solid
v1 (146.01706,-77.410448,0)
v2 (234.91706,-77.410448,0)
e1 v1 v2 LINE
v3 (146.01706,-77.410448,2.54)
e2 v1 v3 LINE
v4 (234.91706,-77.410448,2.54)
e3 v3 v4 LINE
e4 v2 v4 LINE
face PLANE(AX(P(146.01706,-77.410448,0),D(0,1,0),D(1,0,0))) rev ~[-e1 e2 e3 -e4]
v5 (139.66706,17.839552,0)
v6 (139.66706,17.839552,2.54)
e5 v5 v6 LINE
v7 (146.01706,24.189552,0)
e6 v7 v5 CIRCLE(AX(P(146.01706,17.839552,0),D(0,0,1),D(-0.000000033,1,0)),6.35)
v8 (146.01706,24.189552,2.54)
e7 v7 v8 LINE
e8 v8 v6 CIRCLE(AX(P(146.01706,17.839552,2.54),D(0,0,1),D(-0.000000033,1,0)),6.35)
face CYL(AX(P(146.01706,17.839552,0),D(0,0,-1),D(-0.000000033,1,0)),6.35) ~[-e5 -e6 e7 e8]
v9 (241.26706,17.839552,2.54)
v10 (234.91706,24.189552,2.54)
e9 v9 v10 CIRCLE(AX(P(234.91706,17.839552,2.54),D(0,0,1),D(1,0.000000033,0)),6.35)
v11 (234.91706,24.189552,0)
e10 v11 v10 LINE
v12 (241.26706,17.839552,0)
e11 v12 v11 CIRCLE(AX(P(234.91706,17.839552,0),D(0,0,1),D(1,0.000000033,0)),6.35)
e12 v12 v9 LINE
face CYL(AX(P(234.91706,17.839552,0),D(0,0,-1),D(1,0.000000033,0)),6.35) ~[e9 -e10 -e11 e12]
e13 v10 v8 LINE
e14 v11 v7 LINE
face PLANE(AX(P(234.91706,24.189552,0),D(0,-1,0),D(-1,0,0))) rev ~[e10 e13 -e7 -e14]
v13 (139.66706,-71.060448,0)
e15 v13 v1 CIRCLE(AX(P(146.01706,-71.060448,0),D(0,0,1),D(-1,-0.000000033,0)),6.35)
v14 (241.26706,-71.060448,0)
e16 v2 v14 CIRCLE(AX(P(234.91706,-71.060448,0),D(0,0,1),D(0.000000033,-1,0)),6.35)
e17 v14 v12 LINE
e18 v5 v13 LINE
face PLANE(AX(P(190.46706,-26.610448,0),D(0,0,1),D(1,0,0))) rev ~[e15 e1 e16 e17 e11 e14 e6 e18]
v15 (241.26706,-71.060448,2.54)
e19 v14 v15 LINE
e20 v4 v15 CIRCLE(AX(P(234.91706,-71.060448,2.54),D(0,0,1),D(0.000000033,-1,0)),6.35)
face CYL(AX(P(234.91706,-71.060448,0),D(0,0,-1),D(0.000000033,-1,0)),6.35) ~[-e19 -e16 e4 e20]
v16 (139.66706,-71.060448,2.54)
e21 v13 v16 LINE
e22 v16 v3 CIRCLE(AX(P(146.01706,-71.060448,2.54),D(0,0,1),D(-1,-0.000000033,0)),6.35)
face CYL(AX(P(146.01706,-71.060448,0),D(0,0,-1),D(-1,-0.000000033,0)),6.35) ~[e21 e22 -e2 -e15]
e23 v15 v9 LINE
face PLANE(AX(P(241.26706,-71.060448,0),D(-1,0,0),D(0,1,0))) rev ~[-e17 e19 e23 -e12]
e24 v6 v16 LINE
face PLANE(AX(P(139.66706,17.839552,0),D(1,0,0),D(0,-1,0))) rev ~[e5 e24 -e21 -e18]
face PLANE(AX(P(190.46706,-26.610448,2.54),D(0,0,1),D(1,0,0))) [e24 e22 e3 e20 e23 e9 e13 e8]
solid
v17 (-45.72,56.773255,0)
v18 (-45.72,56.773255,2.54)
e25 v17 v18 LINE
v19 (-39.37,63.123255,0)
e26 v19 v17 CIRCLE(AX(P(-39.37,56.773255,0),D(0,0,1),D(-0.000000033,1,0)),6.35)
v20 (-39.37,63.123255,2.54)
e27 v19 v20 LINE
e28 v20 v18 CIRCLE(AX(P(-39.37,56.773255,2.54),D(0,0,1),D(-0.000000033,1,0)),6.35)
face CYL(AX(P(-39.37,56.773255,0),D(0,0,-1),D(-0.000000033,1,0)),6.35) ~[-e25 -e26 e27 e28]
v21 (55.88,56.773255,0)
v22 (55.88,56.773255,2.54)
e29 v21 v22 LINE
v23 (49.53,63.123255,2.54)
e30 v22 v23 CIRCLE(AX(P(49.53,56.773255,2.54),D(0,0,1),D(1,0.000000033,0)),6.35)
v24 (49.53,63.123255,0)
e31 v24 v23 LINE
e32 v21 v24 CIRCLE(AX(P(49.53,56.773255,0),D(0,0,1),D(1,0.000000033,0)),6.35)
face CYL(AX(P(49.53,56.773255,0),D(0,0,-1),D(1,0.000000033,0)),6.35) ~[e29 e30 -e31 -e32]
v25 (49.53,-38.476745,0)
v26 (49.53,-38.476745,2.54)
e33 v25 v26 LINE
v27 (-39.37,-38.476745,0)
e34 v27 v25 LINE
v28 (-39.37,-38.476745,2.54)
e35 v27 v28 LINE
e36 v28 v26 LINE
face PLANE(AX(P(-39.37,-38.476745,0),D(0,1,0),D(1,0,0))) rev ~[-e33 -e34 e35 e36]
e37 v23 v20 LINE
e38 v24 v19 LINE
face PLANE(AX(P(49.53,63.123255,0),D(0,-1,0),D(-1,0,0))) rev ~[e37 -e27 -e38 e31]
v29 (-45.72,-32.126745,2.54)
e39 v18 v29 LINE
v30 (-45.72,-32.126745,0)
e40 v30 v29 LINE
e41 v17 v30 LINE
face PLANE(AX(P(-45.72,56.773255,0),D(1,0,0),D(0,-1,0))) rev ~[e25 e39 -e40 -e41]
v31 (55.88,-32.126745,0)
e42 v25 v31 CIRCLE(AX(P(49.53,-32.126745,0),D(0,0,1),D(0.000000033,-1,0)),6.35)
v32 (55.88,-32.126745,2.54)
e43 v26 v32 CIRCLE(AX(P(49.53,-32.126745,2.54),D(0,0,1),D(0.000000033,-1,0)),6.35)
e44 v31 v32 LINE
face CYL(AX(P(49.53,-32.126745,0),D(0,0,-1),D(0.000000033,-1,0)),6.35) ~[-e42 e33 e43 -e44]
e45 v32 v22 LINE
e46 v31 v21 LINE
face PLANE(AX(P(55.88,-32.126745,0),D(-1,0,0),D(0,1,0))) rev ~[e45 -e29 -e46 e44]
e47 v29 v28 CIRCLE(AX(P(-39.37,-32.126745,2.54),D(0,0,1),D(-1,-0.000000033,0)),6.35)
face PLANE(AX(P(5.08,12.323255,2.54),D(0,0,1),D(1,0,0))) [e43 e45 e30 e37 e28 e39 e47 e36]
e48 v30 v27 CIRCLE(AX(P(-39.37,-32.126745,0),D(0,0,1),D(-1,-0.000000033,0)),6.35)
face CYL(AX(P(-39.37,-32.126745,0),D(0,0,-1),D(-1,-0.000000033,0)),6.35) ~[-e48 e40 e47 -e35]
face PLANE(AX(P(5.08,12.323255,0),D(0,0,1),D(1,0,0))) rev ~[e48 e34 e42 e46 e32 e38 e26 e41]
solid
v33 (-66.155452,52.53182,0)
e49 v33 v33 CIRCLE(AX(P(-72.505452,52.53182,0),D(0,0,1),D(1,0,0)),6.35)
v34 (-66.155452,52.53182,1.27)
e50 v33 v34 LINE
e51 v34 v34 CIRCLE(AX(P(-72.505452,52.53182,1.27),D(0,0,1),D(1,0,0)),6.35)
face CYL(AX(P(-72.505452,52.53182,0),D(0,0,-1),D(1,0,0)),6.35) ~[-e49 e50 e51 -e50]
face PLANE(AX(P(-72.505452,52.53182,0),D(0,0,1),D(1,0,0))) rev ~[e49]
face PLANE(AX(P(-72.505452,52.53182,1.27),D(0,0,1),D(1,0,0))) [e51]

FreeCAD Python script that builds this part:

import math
import FreeCAD as App
import Part
import Sketcher

V = App.Vector
Q = App.Units.Quantity

doc = App.newDocument("Part")
body = doc.addObject("PartDesign::Body", "Body")

# Sketch on XY plane
sketch1 = body.newObject("Sketcher::SketchObject", "Sketch")
sketch1.AttachmentSupport = (doc.getObject("XY_Plane"), [""])
sketch1.MapMode = "FlatFace"
sketch1.addGeometry(Part.ArcOfCircle(Part.Circle(V(-39.37, -32.126745, 0), V(0, 0, 1), 6.35), math.radians(-179.999998), math.radians(-90.000002)), False)
sketch1.addGeometry(Part.LineSegment(V(-39.37, -38.476745, 0), V(49.53, -38.476745, 0)), False)
sketch1.addGeometry(Part.ArcOfCircle(Part.Circle(V(49.53, -32.126745, 0), V(0, 0, 1), 6.35), math.radians(-89.999998), math.radians(-0.000002)), False)
sketch1.addGeometry(Part.LineSegment(V(55.88, -32.126745, 0), V(55.88, 56.773255, 0)), False)
sketch1.addGeometry(Part.ArcOfCircle(Part.Circle(V(49.53, 56.773255, 0), V(0, 0, 1), 6.35), math.radians(0.000002), math.radians(89.999998)), False)
sketch1.addGeometry(Part.LineSegment(V(49.53, 63.123255, 0), V(-39.37, 63.123255, 0)), False)
sketch1.addGeometry(Part.ArcOfCircle(Part.Circle(V(-39.37, 56.773255, 0), V(0, 0, 1), 6.35), math.radians(90.000002), math.radians(179.999998)), False)
sketch1.addGeometry(Part.LineSegment(V(-45.72, 56.773255, 0), V(-45.72, -32.126745, 0)), False)
sketch1.addConstraint(Sketcher.Constraint("Tangent", 0, 2, 1, 1))
sketch1.addConstraint(Sketcher.Constraint("Tangent", 1, 2, 2, 1))
sketch1.addConstraint(Sketcher.Constraint("Tangent", 2, 2, 3, 1))
sketch1.addConstraint(Sketcher.Constraint("Tangent", 3, 2, 4, 1))
sketch1.addConstraint(Sketcher.Constraint("Tangent", 4, 2, 5, 1))
sketch1.addConstraint(Sketcher.Constraint("Tangent", 5, 2, 6, 1))
sketch1.addConstraint(Sketcher.Constraint("Tangent", 6, 2, 7, 1))
sketch1.addConstraint(Sketcher.Constraint("Tangent", 7, 2, 0, 1))
sketch1.addConstraint(Sketcher.Constraint("Horizontal", 1))
sketch1.addConstraint(Sketcher.Constraint("Vertical", 3))
sketch1.addConstraint(Sketcher.Constraint("Horizontal", 5))
sketch1.addConstraint(Sketcher.Constraint("Vertical", 7))
sketch1.addConstraint(Sketcher.Constraint("Equal", 0, 2))
sketch1.addConstraint(Sketcher.Constraint("Equal", 2, 4))
sketch1.addConstraint(Sketcher.Constraint("Equal", 4, 6))
sketch1.addConstraint(Sketcher.Constraint("Equal", 5, 3))
sketch1.addConstraint(Sketcher.Constraint("Radius", 0, Q("0.25 in")))
sketch1.addConstraint(Sketcher.Constraint("DistanceX", 1, 1, 1, 2, Q("3.5 in")))
sketch1.addConstraint(Sketcher.Constraint("DistanceX", -1, 1, 2, 2, Q("2.2 in")))
sketch1.addConstraint(Sketcher.Constraint("DistanceY", 0, 3, -1, 1, 32.126745))
pad1 = body.newObject("PartDesign::Pad", "Pad")
pad1.Profile = sketch1
pad1.Length = Q("0.1 in")
body2 = doc.addObject("PartDesign::Body", "Body001")

# Sketch on XY plane
sketch2 = body2.newObject("Sketcher::SketchObject", "Sketch001")
sketch2.AttachmentSupport = (doc.getObject("XY_Plane001"), [""])
sketch2.MapMode = "FlatFace"
sketch2.addGeometry(Part.Circle(V(-72.505452, 52.53182, 0), V(0, 0, 1), 6.35), False)
sketch2.addConstraint(Sketcher.Constraint("Diameter", 0, Q("0.5 in")))
sketch2.addConstraint(Sketcher.Constraint("DistanceY", -1, 1, 0, 3, 52.53182))
sketch2.addConstraint(Sketcher.Constraint("DistanceX", 0, 3, -1, 1, 72.505452))
pad2 = body2.newObject("PartDesign::Pad", "Pad001")
pad2.Profile = sketch2
pad2.Length = Q("0.05 in")
body3 = doc.addObject("PartDesign::Body", "Body002")

# Sketch on XY plane
sketch3 = body3.newObject("Sketcher::SketchObject", "Sketch002")
sketch3.AttachmentSupport = (doc.getObject("XY_Plane002"), [""])
sketch3.MapMode = "FlatFace"
sketch3.addGeometry(Part.LineSegment(V(234.91706, 24.189552, 0), V(146.01706, 24.189552, 0)), False)
sketch3.addGeometry(Part.ArcOfCircle(Part.Circle(V(146.01706, 17.839552, 0), V(0, 0, 1), 6.35), math.radians(90.000002), math.radians(179.999998)), False)
sketch3.addGeometry(Part.LineSegment(V(139.66706, 17.839552, 0), V(139.66706, -71.060448, 0)), False)
sketch3.addGeometry(Part.ArcOfCircle(Part.Circle(V(146.01706, -71.060448, 0), V(0, 0, 1), 6.35), math.radians(-179.999998), math.radians(-90.000002)), False)
sketch3.addGeometry(Part.LineSegment(V(146.01706, -77.410448, 0), V(234.91706, -77.410448, 0)), False)
sketch3.addGeometry(Part.ArcOfCircle(Part.Circle(V(234.91706, -71.060448, 0), V(0, 0, 1), 6.35), math.radians(-89.999998), math.radians(-0.000002)), False)
sketch3.addGeometry(Part.LineSegment(V(241.26706, -71.060448, 0), V(241.26706, 17.839552, 0)), False)
sketch3.addGeometry(Part.ArcOfCircle(Part.Circle(V(234.91706, 17.839552, 0), V(0, 0, 1), 6.35), math.radians(0.000002), math.radians(89.999998)), False)
sketch3.addConstraint(Sketcher.Constraint("Tangent", 0, 2, 1, 1))
sketch3.addConstraint(Sketcher.Constraint("Tangent", 1, 2, 2, 1))
sketch3.addConstraint(Sketcher.Constraint("Tangent", 2, 2, 3, 1))
sketch3.addConstraint(Sketcher.Constraint("Tangent", 3, 2, 4, 1))
sketch3.addConstraint(Sketcher.Constraint("Tangent", 4, 2, 5, 1))
sketch3.addConstraint(Sketcher.Constraint("Tangent", 5, 2, 6, 1))
sketch3.addConstraint(Sketcher.Constraint("Tangent", 6, 2, 7, 1))
sketch3.addConstraint(Sketcher.Constraint("Tangent", 7, 2, 0, 1))
sketch3.addConstraint(Sketcher.Constraint("Horizontal", 0))
sketch3.addConstraint(Sketcher.Constraint("Vertical", 2))
sketch3.addConstraint(Sketcher.Constraint("Horizontal", 4))
sketch3.addConstraint(Sketcher.Constraint("Vertical", 6))
sketch3.addConstraint(Sketcher.Constraint("Equal", 1, 3))
sketch3.addConstraint(Sketcher.Constraint("Equal", 3, 5))
sketch3.addConstraint(Sketcher.Constraint("Equal", 5, 7))
sketch3.addConstraint(Sketcher.Constraint("Equal", 4, 2))
sketch3.addConstraint(Sketcher.Constraint("Radius", 1, Q("0.25 in")))
sketch3.addConstraint(Sketcher.Constraint("DistanceX", 0, 2, 0, 1, Q("3.5 in")))
sketch3.addConstraint(Sketcher.Constraint("DistanceX", -1, 1, 1, 3, 146.01706))
sketch3.addConstraint(Sketcher.Constraint("DistanceY", -1, 1, 1, 3, 17.839552))
pad3 = body3.newObject("PartDesign::Pad", "Pad002")
pad3.Profile = sketch3
pad3.Length = Q("0.1 in")

doc.recompute()
